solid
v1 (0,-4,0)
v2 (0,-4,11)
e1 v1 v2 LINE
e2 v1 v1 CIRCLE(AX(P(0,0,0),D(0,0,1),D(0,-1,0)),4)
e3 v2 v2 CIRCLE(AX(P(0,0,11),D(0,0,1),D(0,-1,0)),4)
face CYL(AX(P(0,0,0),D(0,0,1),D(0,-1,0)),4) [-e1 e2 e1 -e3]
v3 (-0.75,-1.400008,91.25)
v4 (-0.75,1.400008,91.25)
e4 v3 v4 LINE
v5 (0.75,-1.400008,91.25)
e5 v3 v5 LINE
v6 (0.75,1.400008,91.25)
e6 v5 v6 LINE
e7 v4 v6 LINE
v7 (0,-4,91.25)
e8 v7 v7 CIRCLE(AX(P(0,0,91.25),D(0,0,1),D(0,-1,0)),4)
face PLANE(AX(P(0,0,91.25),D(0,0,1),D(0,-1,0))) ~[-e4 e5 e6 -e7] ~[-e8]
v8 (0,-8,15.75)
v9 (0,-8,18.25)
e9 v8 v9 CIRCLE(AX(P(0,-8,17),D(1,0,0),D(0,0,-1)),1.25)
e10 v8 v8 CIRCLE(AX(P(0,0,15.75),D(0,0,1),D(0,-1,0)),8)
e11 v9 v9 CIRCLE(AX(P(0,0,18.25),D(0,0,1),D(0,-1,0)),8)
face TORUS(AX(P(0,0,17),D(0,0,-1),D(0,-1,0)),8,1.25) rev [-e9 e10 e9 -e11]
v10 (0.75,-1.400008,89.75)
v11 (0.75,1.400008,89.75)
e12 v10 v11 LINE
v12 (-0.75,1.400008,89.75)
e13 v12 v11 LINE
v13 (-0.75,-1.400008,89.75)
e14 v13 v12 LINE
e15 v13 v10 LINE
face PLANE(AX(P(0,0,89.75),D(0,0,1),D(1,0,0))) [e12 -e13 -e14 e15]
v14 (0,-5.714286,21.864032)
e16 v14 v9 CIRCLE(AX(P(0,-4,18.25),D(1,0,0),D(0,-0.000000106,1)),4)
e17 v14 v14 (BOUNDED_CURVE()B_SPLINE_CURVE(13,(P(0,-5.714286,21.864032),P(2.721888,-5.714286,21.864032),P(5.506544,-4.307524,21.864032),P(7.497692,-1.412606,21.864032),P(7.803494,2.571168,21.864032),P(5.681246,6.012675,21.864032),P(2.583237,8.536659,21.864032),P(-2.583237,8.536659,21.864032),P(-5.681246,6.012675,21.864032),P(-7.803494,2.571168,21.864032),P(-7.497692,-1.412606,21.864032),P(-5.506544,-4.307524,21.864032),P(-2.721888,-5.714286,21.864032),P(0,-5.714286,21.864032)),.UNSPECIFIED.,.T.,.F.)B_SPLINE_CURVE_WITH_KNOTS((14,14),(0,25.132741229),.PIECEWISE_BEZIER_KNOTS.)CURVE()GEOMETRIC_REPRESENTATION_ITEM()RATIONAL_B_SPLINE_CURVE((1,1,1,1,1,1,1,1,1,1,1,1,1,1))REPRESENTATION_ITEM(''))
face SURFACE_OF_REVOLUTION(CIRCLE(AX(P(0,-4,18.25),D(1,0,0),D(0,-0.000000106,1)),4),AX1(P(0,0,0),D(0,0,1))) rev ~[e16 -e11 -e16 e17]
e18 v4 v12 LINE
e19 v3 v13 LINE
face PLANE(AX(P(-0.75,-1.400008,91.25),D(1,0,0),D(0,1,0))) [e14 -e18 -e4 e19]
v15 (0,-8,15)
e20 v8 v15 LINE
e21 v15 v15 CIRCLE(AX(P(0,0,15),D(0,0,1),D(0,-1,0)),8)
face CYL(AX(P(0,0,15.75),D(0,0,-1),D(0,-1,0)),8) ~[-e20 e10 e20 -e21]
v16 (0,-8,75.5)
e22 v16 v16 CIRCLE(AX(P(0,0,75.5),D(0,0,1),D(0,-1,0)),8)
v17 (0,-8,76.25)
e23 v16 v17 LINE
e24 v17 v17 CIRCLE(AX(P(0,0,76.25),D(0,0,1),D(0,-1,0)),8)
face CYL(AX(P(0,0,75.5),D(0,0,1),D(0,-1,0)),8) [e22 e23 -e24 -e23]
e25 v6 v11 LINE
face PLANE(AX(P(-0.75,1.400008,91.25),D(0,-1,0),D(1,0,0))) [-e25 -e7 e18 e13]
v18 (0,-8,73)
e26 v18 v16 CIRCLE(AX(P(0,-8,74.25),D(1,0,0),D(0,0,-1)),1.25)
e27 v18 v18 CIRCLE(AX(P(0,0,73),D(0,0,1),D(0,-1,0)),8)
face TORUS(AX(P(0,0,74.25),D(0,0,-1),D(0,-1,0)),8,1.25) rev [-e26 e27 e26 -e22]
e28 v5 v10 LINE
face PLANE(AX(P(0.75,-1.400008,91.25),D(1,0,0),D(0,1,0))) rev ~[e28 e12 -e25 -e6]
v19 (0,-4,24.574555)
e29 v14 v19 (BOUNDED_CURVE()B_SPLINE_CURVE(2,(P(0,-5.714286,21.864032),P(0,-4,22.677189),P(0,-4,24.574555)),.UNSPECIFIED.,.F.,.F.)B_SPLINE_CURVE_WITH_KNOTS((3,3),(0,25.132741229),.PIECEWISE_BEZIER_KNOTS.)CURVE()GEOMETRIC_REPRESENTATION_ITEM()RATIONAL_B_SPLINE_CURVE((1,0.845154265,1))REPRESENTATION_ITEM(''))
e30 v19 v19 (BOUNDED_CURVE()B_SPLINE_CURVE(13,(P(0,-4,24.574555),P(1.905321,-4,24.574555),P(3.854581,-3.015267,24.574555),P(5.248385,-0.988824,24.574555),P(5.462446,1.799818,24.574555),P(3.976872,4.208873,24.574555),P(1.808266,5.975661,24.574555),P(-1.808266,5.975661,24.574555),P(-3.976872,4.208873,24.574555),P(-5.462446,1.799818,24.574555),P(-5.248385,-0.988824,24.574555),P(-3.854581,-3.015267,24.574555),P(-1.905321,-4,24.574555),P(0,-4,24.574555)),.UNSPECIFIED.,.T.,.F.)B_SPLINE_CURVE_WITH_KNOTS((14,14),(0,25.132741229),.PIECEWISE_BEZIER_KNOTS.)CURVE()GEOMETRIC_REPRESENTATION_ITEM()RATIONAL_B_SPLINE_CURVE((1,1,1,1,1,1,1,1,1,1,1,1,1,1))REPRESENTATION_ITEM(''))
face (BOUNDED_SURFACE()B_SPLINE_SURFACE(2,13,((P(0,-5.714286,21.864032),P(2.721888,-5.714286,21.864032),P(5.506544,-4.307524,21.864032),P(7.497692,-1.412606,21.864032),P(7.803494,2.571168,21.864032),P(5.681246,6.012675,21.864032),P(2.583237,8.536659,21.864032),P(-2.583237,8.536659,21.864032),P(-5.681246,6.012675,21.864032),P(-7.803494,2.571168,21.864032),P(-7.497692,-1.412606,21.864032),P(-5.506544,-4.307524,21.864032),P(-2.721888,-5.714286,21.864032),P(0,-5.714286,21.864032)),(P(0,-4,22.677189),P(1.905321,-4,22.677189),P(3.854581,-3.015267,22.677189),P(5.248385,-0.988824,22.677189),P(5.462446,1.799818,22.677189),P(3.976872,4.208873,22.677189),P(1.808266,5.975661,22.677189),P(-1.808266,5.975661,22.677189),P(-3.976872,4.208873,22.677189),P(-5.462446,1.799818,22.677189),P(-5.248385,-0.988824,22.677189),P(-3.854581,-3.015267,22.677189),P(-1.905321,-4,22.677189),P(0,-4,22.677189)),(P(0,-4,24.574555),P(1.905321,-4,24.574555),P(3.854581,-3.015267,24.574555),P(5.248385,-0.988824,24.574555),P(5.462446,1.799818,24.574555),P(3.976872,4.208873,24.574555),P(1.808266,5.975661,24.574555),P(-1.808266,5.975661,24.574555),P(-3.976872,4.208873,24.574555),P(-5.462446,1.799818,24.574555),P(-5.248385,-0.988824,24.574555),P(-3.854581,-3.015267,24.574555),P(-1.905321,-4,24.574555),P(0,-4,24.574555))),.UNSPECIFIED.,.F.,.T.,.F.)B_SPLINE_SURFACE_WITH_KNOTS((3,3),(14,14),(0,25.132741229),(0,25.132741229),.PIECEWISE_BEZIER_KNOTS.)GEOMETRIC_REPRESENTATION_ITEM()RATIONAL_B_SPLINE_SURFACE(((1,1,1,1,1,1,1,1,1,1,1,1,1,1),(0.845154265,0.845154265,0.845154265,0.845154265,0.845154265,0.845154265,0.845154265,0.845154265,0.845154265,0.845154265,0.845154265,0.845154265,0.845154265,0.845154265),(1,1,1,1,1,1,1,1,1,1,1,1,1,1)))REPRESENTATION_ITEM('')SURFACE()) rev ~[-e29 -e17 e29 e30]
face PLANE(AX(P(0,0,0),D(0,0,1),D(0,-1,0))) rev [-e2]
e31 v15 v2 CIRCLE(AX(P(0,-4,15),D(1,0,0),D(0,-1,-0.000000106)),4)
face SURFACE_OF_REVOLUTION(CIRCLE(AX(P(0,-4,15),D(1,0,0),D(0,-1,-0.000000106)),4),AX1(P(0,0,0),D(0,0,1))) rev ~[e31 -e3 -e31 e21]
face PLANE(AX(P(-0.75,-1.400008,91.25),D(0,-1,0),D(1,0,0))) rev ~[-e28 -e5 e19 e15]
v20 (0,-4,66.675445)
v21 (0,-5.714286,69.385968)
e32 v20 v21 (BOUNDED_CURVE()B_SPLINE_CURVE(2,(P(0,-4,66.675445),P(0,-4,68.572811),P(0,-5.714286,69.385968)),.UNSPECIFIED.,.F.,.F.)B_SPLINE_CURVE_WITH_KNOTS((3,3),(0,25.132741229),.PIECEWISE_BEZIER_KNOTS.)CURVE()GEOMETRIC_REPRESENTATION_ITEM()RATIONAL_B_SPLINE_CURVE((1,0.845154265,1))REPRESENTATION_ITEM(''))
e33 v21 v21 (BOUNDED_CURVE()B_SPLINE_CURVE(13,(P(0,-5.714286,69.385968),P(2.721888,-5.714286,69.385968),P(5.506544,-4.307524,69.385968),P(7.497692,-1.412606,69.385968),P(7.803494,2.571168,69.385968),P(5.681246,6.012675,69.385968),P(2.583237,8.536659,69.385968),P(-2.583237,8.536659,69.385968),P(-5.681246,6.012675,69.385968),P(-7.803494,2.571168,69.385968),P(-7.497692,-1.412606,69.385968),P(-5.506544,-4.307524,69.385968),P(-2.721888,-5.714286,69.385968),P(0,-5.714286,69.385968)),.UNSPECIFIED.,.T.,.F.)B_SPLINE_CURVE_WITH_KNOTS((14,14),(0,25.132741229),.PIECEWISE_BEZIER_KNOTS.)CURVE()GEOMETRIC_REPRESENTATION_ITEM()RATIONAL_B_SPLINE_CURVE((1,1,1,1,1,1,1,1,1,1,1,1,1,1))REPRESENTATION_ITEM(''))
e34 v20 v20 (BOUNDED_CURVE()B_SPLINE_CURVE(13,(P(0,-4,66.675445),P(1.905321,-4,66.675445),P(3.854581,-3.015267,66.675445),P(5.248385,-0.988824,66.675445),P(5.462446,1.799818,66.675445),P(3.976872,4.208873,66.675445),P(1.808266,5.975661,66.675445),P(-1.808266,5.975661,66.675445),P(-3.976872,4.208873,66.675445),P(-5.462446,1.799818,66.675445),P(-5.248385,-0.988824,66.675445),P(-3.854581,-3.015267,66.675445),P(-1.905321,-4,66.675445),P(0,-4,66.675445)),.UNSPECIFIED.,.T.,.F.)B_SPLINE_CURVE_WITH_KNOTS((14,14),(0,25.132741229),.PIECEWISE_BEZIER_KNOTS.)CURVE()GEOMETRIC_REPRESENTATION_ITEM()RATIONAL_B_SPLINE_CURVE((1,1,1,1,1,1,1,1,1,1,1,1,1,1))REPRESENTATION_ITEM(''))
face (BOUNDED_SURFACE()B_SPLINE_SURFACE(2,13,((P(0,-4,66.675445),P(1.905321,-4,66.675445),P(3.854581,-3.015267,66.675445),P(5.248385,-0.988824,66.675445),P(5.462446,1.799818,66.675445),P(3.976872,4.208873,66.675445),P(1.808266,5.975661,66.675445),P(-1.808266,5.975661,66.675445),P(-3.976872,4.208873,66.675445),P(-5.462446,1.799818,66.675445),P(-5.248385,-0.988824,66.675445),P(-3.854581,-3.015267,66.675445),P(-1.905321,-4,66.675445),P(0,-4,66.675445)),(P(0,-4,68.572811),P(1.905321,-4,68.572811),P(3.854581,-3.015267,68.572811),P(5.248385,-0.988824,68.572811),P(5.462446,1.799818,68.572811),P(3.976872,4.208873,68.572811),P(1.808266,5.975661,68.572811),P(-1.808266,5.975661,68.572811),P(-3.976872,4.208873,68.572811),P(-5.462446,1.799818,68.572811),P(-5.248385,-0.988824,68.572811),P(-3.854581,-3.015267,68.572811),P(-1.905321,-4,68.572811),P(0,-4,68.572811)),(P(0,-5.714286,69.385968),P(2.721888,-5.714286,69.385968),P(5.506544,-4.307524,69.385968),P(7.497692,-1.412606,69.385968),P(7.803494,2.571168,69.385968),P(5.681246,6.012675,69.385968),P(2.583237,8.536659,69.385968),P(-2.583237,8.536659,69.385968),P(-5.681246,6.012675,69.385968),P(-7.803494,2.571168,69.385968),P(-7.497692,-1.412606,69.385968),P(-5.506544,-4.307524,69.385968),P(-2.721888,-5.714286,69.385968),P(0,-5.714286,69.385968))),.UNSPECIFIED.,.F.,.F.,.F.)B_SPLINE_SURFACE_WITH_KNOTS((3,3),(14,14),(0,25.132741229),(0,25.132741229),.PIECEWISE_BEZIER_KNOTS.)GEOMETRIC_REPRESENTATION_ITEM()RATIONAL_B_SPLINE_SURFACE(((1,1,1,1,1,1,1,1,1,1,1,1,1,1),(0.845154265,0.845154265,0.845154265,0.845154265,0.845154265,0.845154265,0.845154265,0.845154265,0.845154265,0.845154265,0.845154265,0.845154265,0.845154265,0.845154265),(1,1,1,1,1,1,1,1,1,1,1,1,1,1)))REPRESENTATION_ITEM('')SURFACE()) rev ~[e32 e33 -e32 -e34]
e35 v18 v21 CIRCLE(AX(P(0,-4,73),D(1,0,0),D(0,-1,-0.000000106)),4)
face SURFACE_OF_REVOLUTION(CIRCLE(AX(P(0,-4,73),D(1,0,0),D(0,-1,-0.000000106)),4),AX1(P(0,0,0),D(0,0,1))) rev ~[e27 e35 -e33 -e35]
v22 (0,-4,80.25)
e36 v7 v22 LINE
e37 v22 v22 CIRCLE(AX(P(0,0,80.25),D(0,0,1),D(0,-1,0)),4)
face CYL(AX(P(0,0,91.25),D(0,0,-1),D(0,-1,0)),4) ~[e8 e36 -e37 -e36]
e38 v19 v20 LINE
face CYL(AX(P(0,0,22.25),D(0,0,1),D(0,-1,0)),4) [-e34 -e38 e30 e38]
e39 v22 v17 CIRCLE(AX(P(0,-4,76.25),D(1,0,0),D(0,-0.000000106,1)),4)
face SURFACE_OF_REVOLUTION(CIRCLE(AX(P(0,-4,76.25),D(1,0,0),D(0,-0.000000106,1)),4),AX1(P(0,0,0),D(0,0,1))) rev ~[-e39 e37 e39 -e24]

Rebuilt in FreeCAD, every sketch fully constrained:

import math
import FreeCAD as App
import Part
import Sketcher
Q = App.Units.Quantity


def edges_at(feature, points):
    """Names of the edges that pass closest to the given points."""
    edges = feature.Shape.Edges
    near = lambda p: min(range(len(edges)), key=lambda i: edges[i].distToShape(Part.Vertex(*p))[0])
    return sorted({f"Edge{near(p) + 1}" for p in points})


def add_polygon(sketch, points):
    """Adds a closed chain of lines whose ends are joined by coincident constraints."""
    first, n = sketch.GeometryCount, len(points)
    for a, b in zip(points, points[1:] + points[:1]):
        sketch.addGeometry(Part.LineSegment(App.Vector(*a, 0), App.Vector(*b, 0)), False)
    for i in range(n):
        sketch.addConstraint(Sketcher.Constraint("Coincident", first + i, 2, first + (i + 1) % n, 1))

doc = App.newDocument("Part")
body = doc.addObject("PartDesign::Body", "Body")

sketch1 = body.newObject("Sketcher::SketchObject", "Sketch")
sketch1.AttachmentSupport = (doc.getObject("YZ_Plane"), [""])
sketch1.MapMode = "FlatFace"
sketch1.addGeometry([
    Part.LineSegment(App.Vector(-4, 0, 0), App.Vector(0, 0, 0)),
    Part.LineSegment(App.Vector(0, 0, 0), App.Vector(0, 91.25, 0)),
    Part.LineSegment(App.Vector(0, 91.25, 0), App.Vector(-4, 91.25, 0)),
    Part.LineSegment(App.Vector(-4, 91.25, 0), App.Vector(-4, 80.25, 0)),
    Part.ArcOfCircle(Part.Circle(App.Vector(-4, 76.25, 0), App.Vector(0, 0, 1), 4), math.radians(90.000006), math.radians(179.999994)),
    Part.LineSegment(App.Vector(-8, 76.25, 0), App.Vector(-8, 75.5, 0)),
    Part.ArcOfCircle(Part.Circle(App.Vector(-8, 74.25, 0), App.Vector(0, 0, 1), 1.25), math.radians(-90), math.radians(90)),
    Part.ArcOfCircle(Part.Circle(App.Vector(-4, 73, 0), App.Vector(0, 0, 1), 4), math.radians(-179.999994), math.radians(-90.000006)),
    Part.LineSegment(App.Vector(-4, 69, 0), App.Vector(-4, 22.25, 0)),
    Part.ArcOfCircle(Part.Circle(App.Vector(-4, 18.25, 0), App.Vector(0, 0, 1), 4), math.radians(90.000006), math.radians(179.999994)),
    Part.ArcOfCircle(Part.Circle(App.Vector(-8, 17, 0), App.Vector(0, 0, 1), 1.25), math.radians(-90), math.radians(90)),
    Part.LineSegment(App.Vector(-8, 15.75, 0), App.Vector(-8, 15, 0)),
    Part.ArcOfCircle(Part.Circle(App.Vector(-4, 15, 0), App.Vector(0, 0, 1), 4), math.radians(-179.999994), math.radians(-90.000006)),
    Part.LineSegment(App.Vector(-4, 11, 0), App.Vector(-4, 0, 0)),
], False)
sketch1.addConstraint([
    Sketcher.Constraint("Coincident", 0, 2, 1, 1),
    Sketcher.Constraint("Coincident", 1, 2, 2, 1),
    Sketcher.Constraint("Coincident", 2, 2, 3, 1),
    Sketcher.Constraint("Coincident", 3, 2, 4, 1),
    Sketcher.Constraint("Tangent", 4, 2, 5, 1),
    Sketcher.Constraint("Coincident", 5, 2, 6, 2),
    Sketcher.Constraint("Coincident", 6, 1, 7, 1),
    Sketcher.Constraint("Coincident", 7, 2, 8, 1),
    Sketcher.Constraint("Coincident", 8, 2, 9, 1),
    Sketcher.Constraint("Coincident", 9, 2, 10, 2),
    Sketcher.Constraint("Coincident", 10, 1, 11, 1),
    Sketcher.Constraint("Tangent", 11, 2, 12, 1),
    Sketcher.Constraint("Coincident", 12, 2, 13, 1),
    Sketcher.Constraint("Coincident", 13, 2, 0, 1),
    Sketcher.Constraint("Horizontal", 0),
    Sketcher.Constraint("Vertical", 1),
    Sketcher.Constraint("Horizontal", 2),
    Sketcher.Constraint("Vertical", 3),
    Sketcher.Constraint("Vertical", 5),
    Sketcher.Constraint("Vertical", 8),
    Sketcher.Constraint("Vertical", 11),
    Sketcher.Constraint("Vertical", 13),
    Sketcher.Constraint("Coincident", 0, 2, -1, 1),
    Sketcher.Constraint("Equal", 4, 7),
    Sketcher.Constraint("Equal", 7, 9),
    Sketcher.Constraint("Equal", 6, 10),
    Sketcher.Constraint("Equal", 9, 12),
    Sketcher.Constraint("Horizontal", 7, 3, 6, 1),
    Sketcher.Constraint("Vertical", 4, 3, 7, 3),
    Sketcher.Constraint("Vertical", 7, 3, 9, 3),
    Sketcher.Constraint("Vertical", 6, 3, 10, 3),
    Sketcher.Constraint("Vertical", 9, 3, 12, 3),
    Sketcher.Constraint("Vertical", 12, 3, 2, 2),
    Sketcher.Constraint("Vertical", 10, 3, 4, 2),
    Sketcher.Constraint("Vertical", 3, 2, 7, 2),
    Sketcher.Constraint("Vertical", 8, 2, 12, 2),
    Sketcher.Constraint("Equal", 5, 11),
    Sketcher.Constraint("Equal", 3, 13),
    Sketcher.Constraint("Radius", 4, Q("4 mm")),
    Sketcher.Constraint("DistanceX", 0, 1, 0, 2, Q("4 mm")),
    Sketcher.Constraint("DistanceY", 3, 2, 3, 1, Q("11 mm")),
    Sketcher.Constraint("Radius", 6, Q("1.25 mm")),
    Sketcher.Constraint("DistanceY", -1, 1, 7, 3, Q("73 mm")),
    Sketcher.Constraint("DistanceY", -1, 1, 10, 3, Q("17 mm")),
    Sketcher.Constraint("DistanceY", 9, 3, 6, 3, Q("56 mm")),
])
revolution = body.newObject("PartDesign::Revolution", "Revolution")
revolution.Profile = sketch1
revolution.ReferenceAxis = (sketch1, ["V_Axis"])
revolution.Angle = 360
doc.recompute()

fillet = body.newObject("PartDesign::Fillet", "Fillet")
fillet.Base = (revolution, edges_at(revolution, [(0, 4, 22.25), (0, 4, 69), (0, -4, 45.625)]))
fillet.Radius = 3

sketch2 = body.newObject("Sketcher::SketchObject", "Sketch001")
sketch2.AttachmentSupport = (doc.getObject("XY_Plane"), [""])
sketch2.MapMode = "FlatFace"
sketch2.AttachmentOffset = App.Placement(App.Vector(0, 0, 91.25), App.Rotation())
add_polygon(sketch2, [(-0.75, 1.400008), (-0.75, -1.400008), (0.75, -1.400008), (0.75, 1.400008)])
sketch2.addConstraint([
    Sketcher.Constraint("Vertical", 0),
    Sketcher.Constraint("Horizontal", 1),
    Sketcher.Constraint("Vertical", 2),
    Sketcher.Constraint("Horizontal", 3),
    Sketcher.Constraint("Symmetric", 0, 2, 2, 2, -1, 1),
    Sketcher.Constraint("DistanceX", 1, 1, 1, 2, Q("1.5 mm")),
    Sketcher.Constraint("DistanceY", 0, 2, 0, 1, Q("2.800016 mm")),
])
pocket1 = body.newObject("PartDesign::Pocket", "Pocket")
pocket1.Profile = sketch2
pocket1.Length = 1.5

doc.recompute()
